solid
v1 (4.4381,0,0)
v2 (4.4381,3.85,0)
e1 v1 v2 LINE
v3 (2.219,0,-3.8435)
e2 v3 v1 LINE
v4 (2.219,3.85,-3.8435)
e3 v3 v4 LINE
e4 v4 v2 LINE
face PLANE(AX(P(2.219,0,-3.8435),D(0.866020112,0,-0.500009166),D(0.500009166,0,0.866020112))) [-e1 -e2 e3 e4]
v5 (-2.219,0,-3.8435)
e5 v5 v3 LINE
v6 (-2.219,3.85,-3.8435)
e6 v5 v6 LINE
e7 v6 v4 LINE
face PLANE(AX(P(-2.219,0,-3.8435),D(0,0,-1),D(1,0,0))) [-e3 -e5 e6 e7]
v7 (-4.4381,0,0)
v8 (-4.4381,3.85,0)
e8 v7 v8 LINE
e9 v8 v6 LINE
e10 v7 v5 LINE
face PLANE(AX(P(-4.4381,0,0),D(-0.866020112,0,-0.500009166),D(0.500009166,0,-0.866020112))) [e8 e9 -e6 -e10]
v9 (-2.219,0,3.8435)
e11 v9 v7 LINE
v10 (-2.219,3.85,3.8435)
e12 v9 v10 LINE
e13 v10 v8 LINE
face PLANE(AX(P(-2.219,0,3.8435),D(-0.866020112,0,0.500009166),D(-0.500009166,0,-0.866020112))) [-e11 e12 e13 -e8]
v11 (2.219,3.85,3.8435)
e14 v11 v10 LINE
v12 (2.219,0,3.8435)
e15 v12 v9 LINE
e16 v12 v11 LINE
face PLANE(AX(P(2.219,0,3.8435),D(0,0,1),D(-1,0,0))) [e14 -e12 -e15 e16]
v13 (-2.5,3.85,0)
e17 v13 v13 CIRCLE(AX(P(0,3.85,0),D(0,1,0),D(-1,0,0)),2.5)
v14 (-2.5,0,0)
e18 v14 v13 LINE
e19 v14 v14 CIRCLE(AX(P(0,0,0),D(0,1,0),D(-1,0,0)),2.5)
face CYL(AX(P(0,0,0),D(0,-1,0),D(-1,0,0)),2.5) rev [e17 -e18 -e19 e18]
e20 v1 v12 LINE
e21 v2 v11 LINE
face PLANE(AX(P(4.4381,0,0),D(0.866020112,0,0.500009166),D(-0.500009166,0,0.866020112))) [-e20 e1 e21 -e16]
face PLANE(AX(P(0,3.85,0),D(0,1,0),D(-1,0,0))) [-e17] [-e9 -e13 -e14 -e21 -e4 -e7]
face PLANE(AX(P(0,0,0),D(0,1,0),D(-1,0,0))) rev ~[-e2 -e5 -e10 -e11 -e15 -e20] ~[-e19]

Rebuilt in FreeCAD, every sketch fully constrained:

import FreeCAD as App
import Part
import Sketcher
from FreeCAD import Vector
Q = App.Units.Quantity

doc = App.newDocument("Part")
body = doc.addObject("PartDesign::Body", "Body")

sketch1 = body.newObject("Sketcher::SketchObject", "Sketch")
sketch1.AttachmentSupport = (doc.getObject("XZ_Plane"), [""])
sketch1.MapMode = "FlatFace"
sketch1.addGeometry([
    Part.LineSegment(Vector(2.219, 3.8435, 0), Vector(4.4381, 0, 0)),
    Part.LineSegment(Vector(4.4381, 0, 0), Vector(2.219, -3.8435, 0)),
    Part.LineSegment(Vector(2.219, -3.8435, 0), Vector(-2.219, -3.8435, 0)),
    Part.LineSegment(Vector(-2.219, -3.8435, 0), Vector(-4.4381, 0, 0)),
    Part.LineSegment(Vector(-4.4381, 0, 0), Vector(-2.219, 3.8435, 0)),
    Part.LineSegment(Vector(-2.219, 3.8435, 0), Vector(2.219, 3.8435, 0)),
    Part.Circle(Vector(0, 0, 0), Vector(0, 0, 1), 2.5),
], False)
sketch1.addConstraint([
    Sketcher.Constraint("Coincident", 0, 2, 1, 1),
    Sketcher.Constraint("Coincident", 1, 2, 2, 1),
    Sketcher.Constraint("Coincident", 2, 2, 3, 1),
    Sketcher.Constraint("Coincident", 3, 2, 4, 1),
    Sketcher.Constraint("Coincident", 4, 2, 5, 1),
    Sketcher.Constraint("Coincident", 5, 2, 0, 1),
    Sketcher.Constraint("Horizontal", 2),
    Sketcher.Constraint("Horizontal", 5),
    Sketcher.Constraint("Coincident", 6, 3, -1, 1),
    Sketcher.Constraint("Symmetric", 0, 2, 3, 2, -1, 1),
    Sketcher.Constraint("Symmetric", 1, 2, 4, 2, -1, 1),
    Sketcher.Constraint("PointOnObject", 0, 2, -1),
    Sketcher.Constraint("Parallel", 0, 3),
    Sketcher.Constraint("Vertical", 2, 2, 4, 2),
    Sketcher.Constraint("Diameter", 6, Q("5 mm")),
    Sketcher.Constraint("Angle", 0, Q("-59.9994 deg")),
    Sketcher.Constraint("DistanceY", 2, 2, 4, 2, Q("7.687 mm")),
    Sketcher.Constraint("DistanceX", 2, 2, 2, 1, Q("4.438 mm")),
])
pad1 = body.newObject("PartDesign::Pad", "Pad")
pad1.Profile = sketch1
pad1.Length = 3.85
pad1.Reversed = True

doc.recompute()
